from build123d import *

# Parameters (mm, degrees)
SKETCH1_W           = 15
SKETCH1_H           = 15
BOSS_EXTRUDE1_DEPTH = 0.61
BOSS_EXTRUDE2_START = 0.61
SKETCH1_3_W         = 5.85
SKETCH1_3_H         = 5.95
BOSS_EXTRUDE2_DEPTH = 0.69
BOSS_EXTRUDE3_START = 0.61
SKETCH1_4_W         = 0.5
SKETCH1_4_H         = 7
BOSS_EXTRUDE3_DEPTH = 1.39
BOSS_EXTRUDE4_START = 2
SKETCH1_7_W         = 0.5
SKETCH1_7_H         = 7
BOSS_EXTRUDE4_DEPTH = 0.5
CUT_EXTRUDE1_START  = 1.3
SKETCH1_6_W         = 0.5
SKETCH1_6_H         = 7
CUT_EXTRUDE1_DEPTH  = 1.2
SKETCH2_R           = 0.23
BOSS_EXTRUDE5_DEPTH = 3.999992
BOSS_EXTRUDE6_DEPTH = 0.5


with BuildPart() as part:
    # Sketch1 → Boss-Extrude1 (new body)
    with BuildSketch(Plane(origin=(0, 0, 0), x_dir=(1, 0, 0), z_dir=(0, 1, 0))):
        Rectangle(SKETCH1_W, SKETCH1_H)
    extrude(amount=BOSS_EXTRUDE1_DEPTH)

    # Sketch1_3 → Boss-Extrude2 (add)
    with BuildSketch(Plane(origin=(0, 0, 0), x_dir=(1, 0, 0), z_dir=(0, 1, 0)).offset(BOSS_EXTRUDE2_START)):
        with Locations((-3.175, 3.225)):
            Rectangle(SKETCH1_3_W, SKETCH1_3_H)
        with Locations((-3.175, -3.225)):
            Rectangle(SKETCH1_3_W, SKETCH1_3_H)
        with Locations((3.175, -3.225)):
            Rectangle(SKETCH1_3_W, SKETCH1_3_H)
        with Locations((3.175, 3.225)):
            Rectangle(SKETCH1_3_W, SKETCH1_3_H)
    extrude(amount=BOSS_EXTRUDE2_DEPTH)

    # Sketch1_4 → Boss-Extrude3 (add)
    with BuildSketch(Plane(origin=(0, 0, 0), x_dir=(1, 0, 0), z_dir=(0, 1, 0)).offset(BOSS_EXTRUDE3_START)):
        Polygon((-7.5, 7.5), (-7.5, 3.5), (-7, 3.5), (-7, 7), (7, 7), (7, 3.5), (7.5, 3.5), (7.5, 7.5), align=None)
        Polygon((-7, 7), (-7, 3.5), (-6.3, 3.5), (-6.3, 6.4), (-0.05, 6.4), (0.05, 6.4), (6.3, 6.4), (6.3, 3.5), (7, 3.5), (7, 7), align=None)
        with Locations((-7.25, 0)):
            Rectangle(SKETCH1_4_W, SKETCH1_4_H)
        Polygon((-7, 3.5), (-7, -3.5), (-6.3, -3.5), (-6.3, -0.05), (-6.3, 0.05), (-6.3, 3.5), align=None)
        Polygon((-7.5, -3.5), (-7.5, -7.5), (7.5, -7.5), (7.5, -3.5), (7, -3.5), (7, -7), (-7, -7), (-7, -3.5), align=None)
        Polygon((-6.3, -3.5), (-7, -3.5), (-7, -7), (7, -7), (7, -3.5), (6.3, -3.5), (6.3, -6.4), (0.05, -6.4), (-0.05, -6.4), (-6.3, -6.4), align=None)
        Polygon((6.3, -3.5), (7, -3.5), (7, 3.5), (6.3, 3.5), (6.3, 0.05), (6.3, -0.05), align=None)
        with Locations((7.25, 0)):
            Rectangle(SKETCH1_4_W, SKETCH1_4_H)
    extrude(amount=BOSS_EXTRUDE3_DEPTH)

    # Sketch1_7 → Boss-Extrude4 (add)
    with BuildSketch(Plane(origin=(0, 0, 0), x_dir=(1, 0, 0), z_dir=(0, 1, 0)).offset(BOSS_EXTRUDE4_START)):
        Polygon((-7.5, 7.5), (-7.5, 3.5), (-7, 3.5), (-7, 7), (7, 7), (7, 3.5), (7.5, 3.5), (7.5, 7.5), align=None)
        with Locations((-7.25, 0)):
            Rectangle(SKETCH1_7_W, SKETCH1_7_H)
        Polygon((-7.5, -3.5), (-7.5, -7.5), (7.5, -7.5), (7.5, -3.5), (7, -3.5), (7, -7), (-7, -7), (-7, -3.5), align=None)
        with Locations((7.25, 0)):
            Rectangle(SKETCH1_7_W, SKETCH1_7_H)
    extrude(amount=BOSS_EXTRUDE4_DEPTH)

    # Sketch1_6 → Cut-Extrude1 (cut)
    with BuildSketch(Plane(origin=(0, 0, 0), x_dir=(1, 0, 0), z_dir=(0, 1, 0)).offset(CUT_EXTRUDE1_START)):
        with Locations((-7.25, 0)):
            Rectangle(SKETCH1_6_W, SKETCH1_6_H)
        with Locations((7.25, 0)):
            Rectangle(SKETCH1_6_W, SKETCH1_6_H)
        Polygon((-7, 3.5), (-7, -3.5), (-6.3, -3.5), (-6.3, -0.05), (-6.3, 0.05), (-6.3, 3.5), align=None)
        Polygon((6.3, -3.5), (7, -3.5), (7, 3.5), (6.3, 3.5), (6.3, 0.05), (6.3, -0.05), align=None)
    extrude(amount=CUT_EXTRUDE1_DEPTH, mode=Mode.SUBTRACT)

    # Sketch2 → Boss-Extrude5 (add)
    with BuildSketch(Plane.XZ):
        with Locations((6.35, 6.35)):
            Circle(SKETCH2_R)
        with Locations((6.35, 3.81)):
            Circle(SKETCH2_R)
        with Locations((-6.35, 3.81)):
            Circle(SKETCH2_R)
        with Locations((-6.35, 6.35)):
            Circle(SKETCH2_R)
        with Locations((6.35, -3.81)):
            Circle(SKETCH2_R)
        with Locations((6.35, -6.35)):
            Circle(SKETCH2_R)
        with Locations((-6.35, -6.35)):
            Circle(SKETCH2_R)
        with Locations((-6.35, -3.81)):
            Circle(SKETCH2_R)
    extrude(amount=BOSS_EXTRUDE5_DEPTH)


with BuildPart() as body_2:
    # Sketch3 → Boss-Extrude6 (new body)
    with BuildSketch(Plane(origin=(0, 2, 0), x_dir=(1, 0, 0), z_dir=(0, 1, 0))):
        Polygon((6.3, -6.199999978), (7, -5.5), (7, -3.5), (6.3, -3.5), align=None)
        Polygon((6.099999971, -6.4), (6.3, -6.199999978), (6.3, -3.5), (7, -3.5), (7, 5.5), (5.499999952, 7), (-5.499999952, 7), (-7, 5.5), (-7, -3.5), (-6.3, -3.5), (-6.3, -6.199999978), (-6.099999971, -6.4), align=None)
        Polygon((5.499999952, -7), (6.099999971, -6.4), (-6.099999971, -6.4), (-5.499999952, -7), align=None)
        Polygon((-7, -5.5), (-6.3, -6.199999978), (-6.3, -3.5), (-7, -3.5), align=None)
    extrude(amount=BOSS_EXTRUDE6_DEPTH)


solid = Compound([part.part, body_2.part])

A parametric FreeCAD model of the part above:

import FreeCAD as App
import Part
import Sketcher
from FreeCAD import Vector
Q = App.Units.Quantity


def add_polygon(sketch, points):
    """Adds a closed chain of lines whose ends are joined by coincident constraints."""
    first, n = sketch.GeometryCount, len(points)
    for a, b in zip(points, points[1:] + points[:1]):
        sketch.addGeometry(Part.LineSegment(App.Vector(*a, 0), App.Vector(*b, 0)), False)
    for i in range(n):
        sketch.addConstraint(Sketcher.Constraint("Coincident", first + i, 2, first + (i + 1) % n, 1))

doc = App.newDocument("Part")
body = doc.addObject("PartDesign::Body", "Body")

sketch1 = body.newObject("Sketcher::SketchObject", "Sketch")
sketch1.AttachmentSupport = (doc.getObject("XZ_Plane"), [""])
sketch1.MapMode = "FlatFace"
add_polygon(sketch1, [(-7.5, -7.5), (-7.5, 7.5), (7.5, 7.5), (7.5, -7.5)])
sketch1.addConstraint([
    Sketcher.Constraint("Vertical", 0),
    Sketcher.Constraint("Horizontal", 1),
    Sketcher.Constraint("Vertical", 2),
    Sketcher.Constraint("Horizontal", 3),
    Sketcher.Constraint("Symmetric", 0, 2, 2, 2, -1, 1),
    Sketcher.Constraint("Equal", 3, 0),
    Sketcher.Constraint("DistanceX", 1, 1, 1, 2, Q("15 mm")),
])
pad1 = body.newObject("PartDesign::Pad", "Pad")
pad1.Profile = sketch1
pad1.Length = 0.61
pad1.Reversed = True

sketch2 = body.newObject("Sketcher::SketchObject", "Sketch001")
sketch2.AttachmentSupport = (doc.getObject("XZ_Plane"), [""])
sketch2.MapMode = "FlatFace"
sketch2.AttachmentOffset = App.Placement(Vector(0, 0, -0.61), App.Rotation())
add_polygon(sketch2, [(-6.1, -6.2), (-6.1, -0.25), (-0.25, -0.25), (-0.25, -6.2)])
add_polygon(sketch2, [(-6.1, 0.25), (-6.1, 6.2), (-0.25, 6.2), (-0.25, 0.25)])
add_polygon(sketch2, [(0.25, 0.25), (0.25, 6.2), (6.1, 6.2), (6.1, 0.25)])
add_polygon(sketch2, [(0.25, -6.2), (0.25, -0.25), (6.1, -0.25), (6.1, -6.2)])
sketch2.addConstraint([
    Sketcher.Constraint("Vertical", 0),
    Sketcher.Constraint("Horizontal", 1),
    Sketcher.Constraint("Vertical", 2),
    Sketcher.Constraint("Horizontal", 3),
    Sketcher.Constraint("Vertical", 4),
    Sketcher.Constraint("Horizontal", 5),
    Sketcher.Constraint("Vertical", 6),
    Sketcher.Constraint("Horizontal", 7),
    Sketcher.Constraint("Vertical", 8),
    Sketcher.Constraint("Horizontal", 9),
    Sketcher.Constraint("Vertical", 10),
    Sketcher.Constraint("Horizontal", 11),
    Sketcher.Constraint("Vertical", 12),
    Sketcher.Constraint("Horizontal", 13),
    Sketcher.Constraint("Vertical", 14),
    Sketcher.Constraint("Horizontal", 15),
    Sketcher.Constraint("Symmetric", 2, 2, 8, 2, -1, 1),
    Sketcher.Constraint("Symmetric", 0, 2, 10, 2, -1, 1),
    Sketcher.Constraint("Symmetric", 6, 2, 12, 2, -1, 1),
    Sketcher.Constraint("Symmetric", 4, 2, 14, 2, -1, 1),
    Sketcher.Constraint("Symmetric", 5, 2, 8, 2, -2),
    Sketcher.Constraint("Symmetric", 7, 2, 10, 2, -2),
    Sketcher.Constraint("DistanceX", 1, 1, 1, 2, Q("5.85 mm")),
    Sketcher.Constraint("DistanceY", 0, 1, 0, 2, Q("5.95 mm")),
    Sketcher.Constraint("DistanceX", 0, 2, -1, 1, Q("6.1 mm")),
    Sketcher.Constraint("DistanceY", 2, 2, -1, 1, Q("6.2 mm")),
])
pad2 = body.newObject("PartDesign::Pad", "Pad001")
pad2.Profile = sketch2
pad2.Length = 0.69
pad2.Reversed = True

sketch3 = body.newObject("Sketcher::SketchObject", "Sketch002")
sketch3.AttachmentSupport = (doc.getObject("XZ_Plane"), [""])
sketch3.MapMode = "FlatFace"
sketch3.AttachmentOffset = App.Placement(Vector(0, 0, -0.61), App.Rotation())
add_polygon(sketch3, [(-7.5, -7.5), (-7.5, 7.5), (7.5, 7.5), (7.5, -7.5)])
add_polygon(sketch3, [(6.3, 6.4), (-6.3, 6.4), (-6.3, -6.4), (6.3, -6.4)])
sketch3.addConstraint([
    Sketcher.Constraint("Vertical", 0),
    Sketcher.Constraint("Horizontal", 1),
    Sketcher.Constraint("Vertical", 2),
    Sketcher.Constraint("Horizontal", 3),
    Sketcher.Constraint("Horizontal", 4),
    Sketcher.Constraint("Vertical", 5),
    Sketcher.Constraint("Horizontal", 6),
    Sketcher.Constraint("Vertical", 7),
    Sketcher.Constraint("Symmetric", 0, 2, 2, 2, -1, 1),
    Sketcher.Constraint("Symmetric", 4, 2, 6, 2, -1, 1),
    Sketcher.Constraint("Equal", 3, 0),
    Sketcher.Constraint("DistanceX", 1, 1, 1, 2, Q("15 mm")),
    Sketcher.Constraint("DistanceX", 4, 2, 4, 1, Q("12.6 mm")),
    Sketcher.Constraint("DistanceY", 5, 2, 5, 1, Q("12.8 mm")),
])
pad3 = body.newObject("PartDesign::Pad", "Pad002")
pad3.Profile = sketch3
pad3.Length = 1.39
pad3.Reversed = True

sketch4 = body.newObject("Sketcher::SketchObject", "Sketch003")
sketch4.AttachmentSupport = (doc.getObject("XZ_Plane"), [""])
sketch4.MapMode = "FlatFace"
sketch4.AttachmentOffset = App.Placement(Vector(0, 0, -2), App.Rotation())
add_polygon(sketch4, [(-7.5, -7.5), (-7.5, 7.5), (7.5, 7.5), (7.5, -7.5)])
add_polygon(sketch4, [(7, 7), (-7, 7), (-7, -7), (7, -7)])
sketch4.addConstraint([
    Sketcher.Constraint("Vertical", 0),
    Sketcher.Constraint("Horizontal", 1),
    Sketcher.Constraint("Vertical", 2),
    Sketcher.Constraint("Horizontal", 3),
    Sketcher.Constraint("Horizontal", 4),
    Sketcher.Constraint("Vertical", 5),
    Sketcher.Constraint("Horizontal", 6),
    Sketcher.Constraint("Vertical", 7),
    Sketcher.Constraint("Symmetric", 0, 2, 2, 2, -1, 1),
    Sketcher.Constraint("Symmetric", 4, 2, 6, 2, -1, 1),
    Sketcher.Constraint("Equal", 3, 0),
    Sketcher.Constraint("Equal", 6, 5),
    Sketcher.Constraint("DistanceX", 1, 1, 1, 2, Q("15 mm")),
    Sketcher.Constraint("DistanceX", 4, 2, 4, 1, Q("14 mm")),
])
pad4 = body.newObject("PartDesign::Pad", "Pad003")
pad4.Profile = sketch4
pad4.Length = 0.5
pad4.Reversed = True

sketch5 = body.newObject("Sketcher::SketchObject", "Sketch004")
sketch5.AttachmentSupport = (doc.getObject("XZ_Plane"), [""])
sketch5.MapMode = "FlatFace"
sketch5.AttachmentOffset = App.Placement(Vector(0, 0, -1.3), App.Rotation())
add_polygon(sketch5, [(-7.5, -3.5), (-7.5, 3.5), (-6.3, 3.5), (-6.3, -3.5)])
add_polygon(sketch5, [(7.5, 3.5), (7.5, -3.5), (6.3, -3.5), (6.3, 3.5)])
sketch5.addConstraint([
    Sketcher.Constraint("Vertical", 0),
    Sketcher.Constraint("Horizontal", 1),
    Sketcher.Constraint("Vertical", 2),
    Sketcher.Constraint("Horizontal", 3),
    Sketcher.Constraint("Vertical", 4),
    Sketcher.Constraint("Horizontal", 5),
    Sketcher.Constraint("Vertical", 6),
    Sketcher.Constraint("Horizontal", 7),
    Sketcher.Constraint("Symmetric", 0, 2, 4, 2, -1, 1),
    Sketcher.Constraint("Symmetric", 2, 2, 6, 2, -1, 1),
    Sketcher.Constraint("Horizontal", 3, 2, 4, 2),
    Sketcher.Constraint("DistanceY", 0, 1, 0, 2, Q("7 mm")),
    Sketcher.Constraint("DistanceX", 1, 1, 1, 2, Q("1.2 mm")),
    Sketcher.Constraint("DistanceX", 3, 2, 4, 2, Q("15 mm")),
])
pocket1 = body.newObject("PartDesign::Pocket", "Pocket")
pocket1.Profile = sketch5
pocket1.Length = 1.2

sketch6 = body.newObject("Sketcher::SketchObject", "Sketch005")
sketch6.AttachmentSupport = (doc.getObject("XZ_Plane"), [""])
sketch6.MapMode = "FlatFace"
sketch6.addGeometry([
    Part.Circle(Vector(6.35, 6.35, 0), Vector(0, 0, 1), 0.23),
    Part.Circle(Vector(6.35, 3.81, 0), Vector(0, 0, 1), 0.23),
    Part.Circle(Vector(-6.35, 3.81, 0), Vector(0, 0, 1), 0.23),
    Part.Circle(Vector(-6.35, 6.35, 0), Vector(0, 0, 1), 0.23),
    Part.Circle(Vector(6.35, -3.81, 0), Vector(0, 0, 1), 0.23),
    Part.Circle(Vector(6.35, -6.35, 0), Vector(0, 0, 1), 0.23),
    Part.Circle(Vector(-6.35, -6.35, 0), Vector(0, 0, 1), 0.23),
    Part.Circle(Vector(-6.35, -3.81, 0), Vector(0, 0, 1), 0.23),
], False)
sketch6.addConstraint([
    Sketcher.Constraint("Equal", 0, 1),
    Sketcher.Constraint("Equal", 1, 2),
    Sketcher.Constraint("Equal", 2, 3),
    Sketcher.Constraint("Equal", 3, 4),
    Sketcher.Constraint("Equal", 4, 5),
    Sketcher.Constraint("Equal", 5, 6),
    Sketcher.Constraint("Equal", 6, 7),
    Sketcher.Constraint("Symmetric", 2, 3, 4, 3, -1, 1),
    Sketcher.Constraint("Symmetric", 3, 3, 5, 3, -1, 1),
    Sketcher.Constraint("Symmetric", 0, 3, 6, 3, -1, 1),
    Sketcher.Constraint("Symmetric", 1, 3, 7, 3, -1, 1),
    Sketcher.Constraint("Symmetric", 1, 3, 2, 3, -2),
    Sketcher.Constraint("Symmetric", 0, 3, 3, 3, -2),
    Sketcher.Constraint("Vertical", 0, 3, 1, 3),
    Sketcher.Constraint("Diameter", 0, Q("0.46 mm")),
    Sketcher.Constraint("DistanceX", 2, 3, 1, 3, Q("12.7 mm")),
    Sketcher.Constraint("DistanceY", 5, 3, 0, 3, Q("12.7 mm")),
    Sketcher.Constraint("DistanceY", -1, 1, 1, 3, Q("3.81 mm")),
])
pad5 = body.newObject("PartDesign::Pad", "Pad004")
pad5.Profile = sketch6
pad5.Length = 3.999992
body2 = doc.addObject("PartDesign::Body", "Body001")

sketch7 = body2.newObject("Sketcher::SketchObject", "Sketch006")
sketch7.AttachmentSupport = (doc.getObject("XZ_Plane001"), [""])
sketch7.MapMode = "FlatFace"
sketch7.AttachmentOffset = App.Placement(Vector(0, 0, -2), App.Rotation())
add_polygon(sketch7, [(6.3, 6.2), (7, 5.5), (7, -5.5), (5.5, -7), (-5.5, -7), (-7, -5.5), (-7, 5.5), (-6.3, 6.2), (-6.1, 6.4), (-5.5, 7), (5.5, 7), (6.1, 6.4)])
sketch7.addConstraint([
    Sketcher.Constraint("Vertical", 1),
    Sketcher.Constraint("Horizontal", 3),
    Sketcher.Constraint("Vertical", 5),
    Sketcher.Constraint("Horizontal", 9),
    Sketcher.Constraint("Symmetric", 0, 2, 4, 2, -1, 1),
    Sketcher.Constraint("Symmetric", 2, 2, 8, 2, -1, 1),
    Sketcher.Constraint("Symmetric", 7, 2, 10, 2, -2),
    Sketcher.Constraint("Symmetric", 6, 2, 11, 2, -2),
    Sketcher.Constraint("Perpendicular", 0, 2),
    Sketcher.Constraint("Perpendicular", 2, 4),
    Sketcher.Constraint("Perpendicular", 4, 6),
    Sketcher.Constraint("Parallel", 6, 7),
    Sketcher.Constraint("Parallel", 7, 8),
    Sketcher.Constraint("Perpendicular", 8, 10),
    Sketcher.Constraint("Parallel", 10, 11),
    Sketcher.Constraint("Equal", 9, 1),
    Sketcher.Constraint("DistanceX", 3, 2, 3, 1, Q("11 mm")),
    Sketcher.Constraint("DistanceX", -1, 1, 0, 2, Q("7 mm")),
    Sketcher.Constraint("DistanceX", 6, 2, -1, 1, Q("6.3 mm")),
    Sketcher.Constraint("DistanceX", 7, 2, -1, 1, Q("6.1 mm")),
])
pad6 = body2.newObject("PartDesign::Pad", "Pad005")
pad6.Profile = sketch7
pad6.Length = 0.5
pad6.Reversed = True

doc.recompute()
